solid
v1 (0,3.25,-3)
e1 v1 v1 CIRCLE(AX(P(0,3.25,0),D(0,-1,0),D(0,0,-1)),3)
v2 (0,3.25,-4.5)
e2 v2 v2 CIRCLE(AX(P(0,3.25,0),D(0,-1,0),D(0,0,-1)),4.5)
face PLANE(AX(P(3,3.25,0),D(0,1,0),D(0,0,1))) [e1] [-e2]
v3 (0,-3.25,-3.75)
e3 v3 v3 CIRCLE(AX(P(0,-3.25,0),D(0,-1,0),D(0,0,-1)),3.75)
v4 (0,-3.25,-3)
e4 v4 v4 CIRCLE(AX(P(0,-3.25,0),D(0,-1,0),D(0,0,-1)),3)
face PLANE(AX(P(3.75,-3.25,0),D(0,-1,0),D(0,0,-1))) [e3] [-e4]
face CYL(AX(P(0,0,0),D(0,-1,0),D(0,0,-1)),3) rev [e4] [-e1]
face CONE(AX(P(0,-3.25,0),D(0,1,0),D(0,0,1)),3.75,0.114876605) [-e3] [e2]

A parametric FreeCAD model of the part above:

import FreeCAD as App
import Part
import Sketcher


def add_polygon(sketch, points):
    """Adds a closed chain of lines whose ends are joined by coincident constraints."""
    first, n = sketch.GeometryCount, len(points)
    for a, b in zip(points, points[1:] + points[:1]):
        sketch.addGeometry(Part.LineSegment(App.Vector(*a, 0), App.Vector(*b, 0)), False)
    for i in range(n):
        sketch.addConstraint(Sketcher.Constraint("Coincident", first + i, 2, first + (i + 1) % n, 1))

doc = App.newDocument("Part")
body = doc.addObject("PartDesign::Body", "Body")

# Sketch on XY plane
sketch1 = body.newObject("Sketcher::SketchObject", "Sketch")
sketch1.AttachmentSupport = (doc.getObject("XY_Plane"), [""])
sketch1.MapMode = "FlatFace"
add_polygon(sketch1, [(4.5, 3.25), (3, 3.25), (3, -3.25), (3.75, -3.25)])  # lines 0-3
sketch1.addConstraint([
    Sketcher.Constraint("Horizontal", 0),
    Sketcher.Constraint("Vertical", 1),
    Sketcher.Constraint("Horizontal", 2),
    Sketcher.Constraint("DistanceX", 0, 2, 0, 1, 1.5),
    Sketcher.Constraint("DistanceY", 1, 2, 1, 1, 6.5),
    Sketcher.Constraint("DistanceX", -1, 1, 0, 2, 3.0),
    Sketcher.Constraint("DistanceX", 2, 1, 2, 2, 0.75),
    Sketcher.Constraint("DistanceY", -1, 1, 0, 2, 3.25),
])
revolution = body.newObject("PartDesign::Revolution", "Revolution")
revolution.Profile = sketch1
revolution.ReferenceAxis = (sketch1, ["V_Axis"])
revolution.Angle = 360

doc.recompute()
